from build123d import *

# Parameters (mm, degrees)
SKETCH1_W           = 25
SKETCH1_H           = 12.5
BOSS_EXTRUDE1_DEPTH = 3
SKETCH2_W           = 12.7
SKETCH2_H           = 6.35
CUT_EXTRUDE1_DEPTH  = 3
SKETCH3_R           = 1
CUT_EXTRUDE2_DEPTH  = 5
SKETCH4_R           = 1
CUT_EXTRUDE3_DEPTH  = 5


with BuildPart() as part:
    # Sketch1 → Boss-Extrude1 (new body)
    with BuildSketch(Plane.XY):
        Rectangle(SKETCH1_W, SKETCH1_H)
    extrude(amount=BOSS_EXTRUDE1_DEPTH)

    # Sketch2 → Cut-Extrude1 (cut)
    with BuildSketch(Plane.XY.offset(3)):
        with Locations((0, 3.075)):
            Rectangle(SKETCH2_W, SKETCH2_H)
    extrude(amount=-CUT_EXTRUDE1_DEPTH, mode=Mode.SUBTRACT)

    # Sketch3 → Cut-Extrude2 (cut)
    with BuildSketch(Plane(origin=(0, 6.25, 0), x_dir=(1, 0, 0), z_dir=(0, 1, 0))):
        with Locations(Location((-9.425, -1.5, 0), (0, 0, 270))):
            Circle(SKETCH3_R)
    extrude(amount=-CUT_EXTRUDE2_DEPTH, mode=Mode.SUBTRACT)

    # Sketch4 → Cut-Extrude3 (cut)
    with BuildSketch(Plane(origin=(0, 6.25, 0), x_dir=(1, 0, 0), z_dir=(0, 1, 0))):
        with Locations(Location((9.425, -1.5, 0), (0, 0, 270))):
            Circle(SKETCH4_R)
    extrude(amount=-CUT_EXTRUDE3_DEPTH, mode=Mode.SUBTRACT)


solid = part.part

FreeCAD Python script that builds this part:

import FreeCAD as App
import Part
import Sketcher
from FreeCAD import Vector

doc = App.newDocument("Part")
params = doc.addObject("Spreadsheet::Sheet", "Params")
for row, (alias, value) in enumerate([
    ("sketch1_width", "25 mm"),
    ("sketch1_height", "12.5 mm"),
    ("pad1_length", "3 mm"),
    ("sketch2_width", "12.7 mm"),
    ("sketch2_height", "6.35 mm"),
    ("pocket1_length", "3 mm"),
    ("sketch3_diameter", "2 mm"),
    ("pocket2_length", "5 mm"),
    ("sketch4_diameter", "2 mm"),
    ("pocket3_length", "5 mm"),
], start=1):
    params.set(f"A{row}", alias)
    params.set(f"B{row}", "=" + value)
    params.setAlias(f"B{row}", alias)

body = doc.addObject("PartDesign::Body", "Body")

# Sketch on XY plane
sketch1 = body.newObject("Sketcher::SketchObject", "Sketch")
sketch1.AttachmentSupport = (doc.getObject("XY_Plane"), [""])
sketch1.MapMode = "FlatFace"
sketch1.addGeometry(Part.LineSegment(Vector(-12, 6, 0), Vector(-12, -6, 0)), False)
sketch1.addGeometry(Part.LineSegment(Vector(-12, -6, 0), Vector(12, -6, 0)), False)
sketch1.addGeometry(Part.LineSegment(Vector(12, -6, 0), Vector(12, 6, 0)), False)
sketch1.addGeometry(Part.LineSegment(Vector(12, 6, 0), Vector(-12, 6, 0)), False)
sketch1.addConstraint(Sketcher.Constraint("Coincident", 0, 2, 1, 1))
sketch1.addConstraint(Sketcher.Constraint("Coincident", 1, 2, 2, 1))
sketch1.addConstraint(Sketcher.Constraint("Coincident", 2, 2, 3, 1))
sketch1.addConstraint(Sketcher.Constraint("Coincident", 3, 2, 0, 1))
sketch1.addConstraint(Sketcher.Constraint("Vertical", 0))
sketch1.addConstraint(Sketcher.Constraint("Horizontal", 1))
sketch1.addConstraint(Sketcher.Constraint("Vertical", 2))
sketch1.addConstraint(Sketcher.Constraint("Horizontal", 3))
sketch1.addConstraint(Sketcher.Constraint("Symmetric", 0, 2, 2, 2, -1, 1))
sketch1.addConstraint(Sketcher.Constraint("DistanceX", 1, 1, 1, 2, 25.0))
sketch1.addConstraint(Sketcher.Constraint("DistanceY", 0, 2, 0, 1, 12.5))
sketch1.setExpression("Constraints[9]", "Params.sketch1_width")
sketch1.setExpression("Constraints[10]", "Params.sketch1_height")
pad1 = body.newObject("PartDesign::Pad", "Pad")
pad1.Profile = sketch1
pad1.setExpression("Length", "Params.pad1_length")

# Sketch on XY plane
sketch2 = body.newObject("Sketcher::SketchObject", "Sketch001")
sketch2.AttachmentSupport = (doc.getObject("XY_Plane"), [""])
sketch2.MapMode = "FlatFace"
sketch2.AttachmentOffset = App.Placement(Vector(0, 0, 3), App.Rotation())
sketch2.addGeometry(Part.LineSegment(Vector(-6, 6, 0), Vector(-6, 0, 0)), False)
sketch2.addGeometry(Part.LineSegment(Vector(-6, 0, 0), Vector(6, 0, 0)), False)
sketch2.addGeometry(Part.LineSegment(Vector(6, 0, 0), Vector(6, 6, 0)), False)
sketch2.addGeometry(Part.LineSegment(Vector(6, 6, 0), Vector(-6, 6, 0)), False)
sketch2.addConstraint(Sketcher.Constraint("Coincident", 0, 2, 1, 1))
sketch2.addConstraint(Sketcher.Constraint("Coincident", 1, 2, 2, 1))
sketch2.addConstraint(Sketcher.Constraint("Coincident", 2, 2, 3, 1))
sketch2.addConstraint(Sketcher.Constraint("Coincident", 3, 2, 0, 1))
sketch2.addConstraint(Sketcher.Constraint("Vertical", 0))
sketch2.addConstraint(Sketcher.Constraint("Horizontal", 1))
sketch2.addConstraint(Sketcher.Constraint("Vertical", 2))
sketch2.addConstraint(Sketcher.Constraint("Horizontal", 3))
sketch2.addConstraint(Sketcher.Constraint("DistanceX", 1, 1, 1, 2, 12.7))
sketch2.addConstraint(Sketcher.Constraint("DistanceY", 0, 2, 0, 1, 6.35))
sketch2.addConstraint(Sketcher.Constraint("DistanceY", 0, 2, -1, 1, 0.1))
sketch2.addConstraint(Sketcher.Constraint("DistanceX", 0, 2, -1, 1, 6.35))
sketch2.setExpression("Constraints[8]", "Params.sketch2_width")
sketch2.setExpression("Constraints[9]", "Params.sketch2_height")
pocket1 = body.newObject("PartDesign::Pocket", "Pocket")
pocket1.Profile = sketch2
pocket1.setExpression("Length", "Params.pocket1_length")

# Sketch on XZ plane
sketch3 = body.newObject("Sketcher::SketchObject", "Sketch002")
sketch3.AttachmentSupport = (doc.getObject("XZ_Plane"), [""])
sketch3.MapMode = "FlatFace"
sketch3.AttachmentOffset = App.Placement(Vector(0, 0, -6.25), App.Rotation())
sketch3.addGeometry(Part.Circle(Vector(-9.4, 1.5, 0), Vector(0, 0, 1), 1), False)
sketch3.addConstraint(Sketcher.Constraint("Diameter", 0, 2.0))
sketch3.addConstraint(Sketcher.Constraint("DistanceY", -1, 1, 0, 3, 1.5))
sketch3.addConstraint(Sketcher.Constraint("DistanceX", 0, 3, -1, 1, 9.425))
sketch3.setExpression("Constraints[0]", "Params.sketch3_diameter")
pocket2 = body.newObject("PartDesign::Pocket", "Pocket001")
pocket2.Profile = sketch3
pocket2.setExpression("Length", "Params.pocket2_length")
pocket2.Reversed = True

# Sketch on XZ plane
sketch4 = body.newObject("Sketcher::SketchObject", "Sketch003")
sketch4.AttachmentSupport = (doc.getObject("XZ_Plane"), [""])
sketch4.MapMode = "FlatFace"
sketch4.AttachmentOffset = App.Placement(Vector(0, 0, -6.25), App.Rotation())
sketch4.addGeometry(Part.Circle(Vector(9.4, 1.5, 0), Vector(0, 0, 1), 1), False)
sketch4.addConstraint(Sketcher.Constraint("Diameter", 0, 2.0))
sketch4.addConstraint(Sketcher.Constraint("DistanceY", -1, 1, 0, 3, 1.5))
sketch4.addConstraint(Sketcher.Constraint("DistanceX", -1, 1, 0, 3, 9.425))
sketch4.setExpression("Constraints[0]", "Params.sketch4_diameter")
pocket3 = body.newObject("PartDesign::Pocket", "Pocket002")
pocket3.Profile = sketch4
pocket3.setExpression("Length", "Params.pocket3_length")
pocket3.Reversed = True

doc.recompute()
